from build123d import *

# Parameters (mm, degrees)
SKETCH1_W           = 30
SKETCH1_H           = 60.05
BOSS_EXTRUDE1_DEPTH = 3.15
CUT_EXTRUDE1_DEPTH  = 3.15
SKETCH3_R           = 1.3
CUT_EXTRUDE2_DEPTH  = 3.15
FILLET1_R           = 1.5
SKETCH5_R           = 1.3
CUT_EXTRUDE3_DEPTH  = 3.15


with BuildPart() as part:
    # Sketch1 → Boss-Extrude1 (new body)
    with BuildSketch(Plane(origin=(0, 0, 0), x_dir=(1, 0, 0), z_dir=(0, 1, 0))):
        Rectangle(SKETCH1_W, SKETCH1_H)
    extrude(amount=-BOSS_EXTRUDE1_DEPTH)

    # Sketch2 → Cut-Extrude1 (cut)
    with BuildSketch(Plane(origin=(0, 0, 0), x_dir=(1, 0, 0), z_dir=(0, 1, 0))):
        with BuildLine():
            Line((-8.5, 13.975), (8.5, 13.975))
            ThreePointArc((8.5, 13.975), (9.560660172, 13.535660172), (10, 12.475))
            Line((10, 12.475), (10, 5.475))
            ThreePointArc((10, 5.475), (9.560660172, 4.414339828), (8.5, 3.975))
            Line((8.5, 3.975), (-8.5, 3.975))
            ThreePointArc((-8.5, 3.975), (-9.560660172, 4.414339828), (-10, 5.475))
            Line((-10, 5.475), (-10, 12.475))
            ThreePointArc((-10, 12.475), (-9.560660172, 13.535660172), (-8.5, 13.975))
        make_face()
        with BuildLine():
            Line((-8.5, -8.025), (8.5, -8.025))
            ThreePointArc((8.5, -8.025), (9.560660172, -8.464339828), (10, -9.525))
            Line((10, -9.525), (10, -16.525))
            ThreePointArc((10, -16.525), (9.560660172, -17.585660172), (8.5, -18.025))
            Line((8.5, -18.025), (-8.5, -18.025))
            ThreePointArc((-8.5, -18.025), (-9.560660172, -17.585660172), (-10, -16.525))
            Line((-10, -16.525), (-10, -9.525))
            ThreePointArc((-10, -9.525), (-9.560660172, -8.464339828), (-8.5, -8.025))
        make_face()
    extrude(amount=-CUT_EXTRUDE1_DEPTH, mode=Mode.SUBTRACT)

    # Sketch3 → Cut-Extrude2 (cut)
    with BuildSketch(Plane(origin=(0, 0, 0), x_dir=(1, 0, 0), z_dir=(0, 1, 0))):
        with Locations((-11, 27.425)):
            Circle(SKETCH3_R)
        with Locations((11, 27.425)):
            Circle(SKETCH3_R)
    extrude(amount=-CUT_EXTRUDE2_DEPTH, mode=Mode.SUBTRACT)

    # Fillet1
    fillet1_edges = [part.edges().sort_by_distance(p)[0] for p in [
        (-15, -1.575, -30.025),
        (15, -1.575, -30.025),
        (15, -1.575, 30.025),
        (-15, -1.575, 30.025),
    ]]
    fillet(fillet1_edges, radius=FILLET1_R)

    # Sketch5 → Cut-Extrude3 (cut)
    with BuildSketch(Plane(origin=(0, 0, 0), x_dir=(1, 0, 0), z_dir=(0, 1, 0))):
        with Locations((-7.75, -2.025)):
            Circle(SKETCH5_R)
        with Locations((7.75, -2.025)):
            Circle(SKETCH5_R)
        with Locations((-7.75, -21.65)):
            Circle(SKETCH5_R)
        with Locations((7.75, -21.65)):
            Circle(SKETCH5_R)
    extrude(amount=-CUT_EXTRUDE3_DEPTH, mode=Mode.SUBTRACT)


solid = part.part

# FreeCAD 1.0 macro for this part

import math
import FreeCAD as App
import Part
import Sketcher

V = App.Vector
Q = App.Units.Quantity


def edges_at(feature, points):
    """Names of the edges that pass closest to the given points."""
    edges = feature.Shape.Edges
    near = lambda p: min(range(len(edges)), key=lambda i: edges[i].distToShape(Part.Vertex(*p))[0])
    return sorted({f"Edge{near(p) + 1}" for p in points})

doc = App.newDocument("Part")
body = doc.addObject("PartDesign::Body", "Body")

# Sketch on XZ plane
sketch1 = body.newObject("Sketcher::SketchObject", "Sketch")
sketch1.AttachmentSupport = (doc.getObject("XZ_Plane"), [""])
sketch1.MapMode = "FlatFace"
sketch1.addGeometry([
    Part.LineSegment(V(-15, -30, 0), V(-15, 30, 0)),
    Part.LineSegment(V(-15, 30, 0), V(15, 30, 0)),
    Part.LineSegment(V(15, 30, 0), V(15, -30, 0)),
    Part.LineSegment(V(15, -30, 0), V(-15, -30, 0)),
], False)
sketch1.addConstraint([
    Sketcher.Constraint("Coincident", 0, 2, 1, 1),
    Sketcher.Constraint("Coincident", 1, 2, 2, 1),
    Sketcher.Constraint("Coincident", 2, 2, 3, 1),
    Sketcher.Constraint("Coincident", 3, 2, 0, 1),
    Sketcher.Constraint("Vertical", 0),
    Sketcher.Constraint("Horizontal", 1),
    Sketcher.Constraint("Vertical", 2),
    Sketcher.Constraint("Horizontal", 3),
    Sketcher.Constraint("Symmetric", 0, 2, 2, 2, -1, 1),
    Sketcher.Constraint("DistanceX", 1, 1, 1, 2, Q("30 mm")),
    Sketcher.Constraint("DistanceY", 0, 1, 0, 2, Q("60.05 mm")),
])
pad1 = body.newObject("PartDesign::Pad", "Pad")
pad1.Profile = sketch1
pad1.Length = 3.15

# Sketch on XZ plane
sketch2 = body.newObject("Sketcher::SketchObject", "Sketch001")
sketch2.AttachmentSupport = (doc.getObject("XZ_Plane"), [""])
sketch2.MapMode = "FlatFace"
sketch2.addGeometry([
    Part.LineSegment(V(8.5, -14, 0), V(-8.5, -14, 0)),  # 0
    Part.ArcOfCircle(Part.Circle(V(-8.5, -12.5, 0), V(0, 0, 1), 1.5), math.radians(180), math.radians(270)),  # 1
    Part.LineSegment(V(-10, -12.5, 0), V(-10, -5.5, 0)),  # 2
    Part.ArcOfCircle(Part.Circle(V(-8.5, -5.5, 0), V(0, 0, 1), 1.5), math.radians(90), math.radians(180)),  # 3
    Part.LineSegment(V(-8.5, -4, 0), V(8.5, -4, 0)),  # 4
    Part.ArcOfCircle(Part.Circle(V(8.5, -5.5, 0), V(0, 0, 1), 1.5), math.radians(0), math.radians(90)),  # 5
    Part.LineSegment(V(10, -5.5, 0), V(10, -12.5, 0)),  # 6
    Part.ArcOfCircle(Part.Circle(V(8.5, -12.5, 0), V(0, 0, 1), 1.5), math.radians(-90), math.radians(0)),  # 7
    Part.LineSegment(V(8.5, 8, 0), V(-8.5, 8, 0)),  # 8
    Part.ArcOfCircle(Part.Circle(V(-8.5, 9.5, 0), V(0, 0, 1), 1.5), math.radians(180), math.radians(270)),  # 9
    Part.LineSegment(V(-10, 9.5, 0), V(-10, 16.5, 0)),  # 10
    Part.ArcOfCircle(Part.Circle(V(-8.5, 16.5, 0), V(0, 0, 1), 1.5), math.radians(90), math.radians(180)),  # 11
    Part.LineSegment(V(-8.5, 18, 0), V(8.5, 18, 0)),  # 12
    Part.ArcOfCircle(Part.Circle(V(8.5, 16.5, 0), V(0, 0, 1), 1.5), math.radians(0), math.radians(90)),  # 13
    Part.LineSegment(V(10, 16.5, 0), V(10, 9.5, 0)),  # 14
    Part.ArcOfCircle(Part.Circle(V(8.5, 9.5, 0), V(0, 0, 1), 1.5), math.radians(-90), math.radians(0)),  # 15
], False)
sketch2.addConstraint([
    Sketcher.Constraint("Tangent", 0, 2, 1, 2),
    Sketcher.Constraint("Tangent", 1, 1, 2, 1),
    Sketcher.Constraint("Tangent", 2, 2, 3, 2),
    Sketcher.Constraint("Tangent", 3, 1, 4, 1),
    Sketcher.Constraint("Tangent", 4, 2, 5, 2),
    Sketcher.Constraint("Tangent", 5, 1, 6, 1),
    Sketcher.Constraint("Tangent", 6, 2, 7, 2),
    Sketcher.Constraint("Tangent", 7, 1, 0, 1),
    Sketcher.Constraint("Tangent", 8, 2, 9, 2),
    Sketcher.Constraint("Tangent", 9, 1, 10, 1),
    Sketcher.Constraint("Tangent", 10, 2, 11, 2),
    Sketcher.Constraint("Tangent", 11, 1, 12, 1),
    Sketcher.Constraint("Tangent", 12, 2, 13, 2),
    Sketcher.Constraint("Tangent", 13, 1, 14, 1),
    Sketcher.Constraint("Tangent", 14, 2, 15, 2),
    Sketcher.Constraint("Tangent", 15, 1, 8, 1),
    Sketcher.Constraint("Horizontal", 0),
    Sketcher.Constraint("Vertical", 2),
    Sketcher.Constraint("Horizontal", 4),
    Sketcher.Constraint("Vertical", 6),
    Sketcher.Constraint("Horizontal", 8),
    Sketcher.Constraint("Vertical", 10),
    Sketcher.Constraint("Horizontal", 12),
    Sketcher.Constraint("Vertical", 14),
    Sketcher.Constraint("Equal", 1, 3),
    Sketcher.Constraint("Equal", 3, 5),
    Sketcher.Constraint("Equal", 5, 7),
    Sketcher.Constraint("Equal", 7, 9),
    Sketcher.Constraint("Equal", 9, 11),
    Sketcher.Constraint("Equal", 11, 13),
    Sketcher.Constraint("Equal", 13, 15),
    Sketcher.Constraint("Vertical", 3, 3, 9, 3),
    Sketcher.Constraint("Vertical", 7, 3, 13, 3),
    Sketcher.Constraint("Equal", 6, 10),
    Sketcher.Constraint("Radius", 1, Q("1.5 mm")),
    Sketcher.Constraint("DistanceX", 0, 2, 0, 1, Q("17 mm")),
    Sketcher.Constraint("DistanceY", 2, 1, 2, 2, Q("7 mm")),
    Sketcher.Constraint("DistanceX", 1, 1, -1, 1, Q("10 mm")),
    Sketcher.Constraint("DistanceY", 3, 3, 9, 3, Q("15 mm")),
    Sketcher.Constraint("DistanceY", 1, 3, -1, 1, Q("12.475 mm")),
])
pocket1 = body.newObject("PartDesign::Pocket", "Pocket")
pocket1.Profile = sketch2
pocket1.Length = 3.15
pocket1.Reversed = True

# Sketch on XZ plane
sketch3 = body.newObject("Sketcher::SketchObject", "Sketch002")
sketch3.AttachmentSupport = (doc.getObject("XZ_Plane"), [""])
sketch3.MapMode = "FlatFace"
sketch3.addGeometry([
    Part.Circle(V(-11, -27.4, 0), V(0, 0, 1), 1.3),
    Part.Circle(V(11, -27.4, 0), V(0, 0, 1), 1.3),
], False)
sketch3.addConstraint([
    Sketcher.Constraint("Equal", 0, 1),
    Sketcher.Constraint("Symmetric", 0, 3, 1, 3, -2),
    Sketcher.Constraint("Diameter", 0, Q("2.6 mm")),
    Sketcher.Constraint("DistanceX", 0, 3, -1, 1, Q("11 mm")),
    Sketcher.Constraint("DistanceY", 0, 3, -1, 1, Q("27.425 mm")),
])
pocket2 = body.newObject("PartDesign::Pocket", "Pocket001")
pocket2.Profile = sketch3
pocket2.Length = 3.15
pocket2.Reversed = True
doc.recompute()

fillet = body.newObject("PartDesign::Fillet", "Fillet")
fillet.Base = (pocket2, edges_at(pocket2, [
    (-15, -1.575, -30.025),
    (15, -1.575, -30.025),
    (15, -1.575, 30.025),
    (-15, -1.575, 30.025),
]))
fillet.Radius = 1.5

# Sketch on XZ plane
sketch4 = body.newObject("Sketcher::SketchObject", "Sketch003")
sketch4.AttachmentSupport = (doc.getObject("XZ_Plane"), [""])
sketch4.MapMode = "FlatFace"
sketch4.addGeometry([
    Part.Circle(V(-7.8, 2, 0), V(0, 0, 1), 1.3),
    Part.Circle(V(7.8, 2, 0), V(0, 0, 1), 1.3),
    Part.Circle(V(-7.8, 21.6, 0), V(0, 0, 1), 1.3),
    Part.Circle(V(7.8, 21.6, 0), V(0, 0, 1), 1.3),
], False)
sketch4.addConstraint([
    Sketcher.Constraint("Equal", 0, 1),
    Sketcher.Constraint("Equal", 1, 2),
    Sketcher.Constraint("Equal", 2, 3),
    Sketcher.Constraint("Symmetric", 0, 3, 1, 3, -2),
    Sketcher.Constraint("Symmetric", 2, 3, 3, 3, -2),
    Sketcher.Constraint("Vertical", 0, 3, 2, 3),
    Sketcher.Constraint("Diameter", 0, Q("2.6 mm")),
    Sketcher.Constraint("DistanceX", 0, 3, 1, 3, Q("15.5 mm")),
    Sketcher.Constraint("DistanceY", -1, 1, 2, 3, Q("21.65 mm")),
    Sketcher.Constraint("DistanceY", -1, 1, 0, 3, Q("2.025 mm")),
])
pocket3 = body.newObject("PartDesign::Pocket", "Pocket002")
pocket3.Profile = sketch4
pocket3.Length = 3.15
pocket3.Reversed = True

doc.recompute()
